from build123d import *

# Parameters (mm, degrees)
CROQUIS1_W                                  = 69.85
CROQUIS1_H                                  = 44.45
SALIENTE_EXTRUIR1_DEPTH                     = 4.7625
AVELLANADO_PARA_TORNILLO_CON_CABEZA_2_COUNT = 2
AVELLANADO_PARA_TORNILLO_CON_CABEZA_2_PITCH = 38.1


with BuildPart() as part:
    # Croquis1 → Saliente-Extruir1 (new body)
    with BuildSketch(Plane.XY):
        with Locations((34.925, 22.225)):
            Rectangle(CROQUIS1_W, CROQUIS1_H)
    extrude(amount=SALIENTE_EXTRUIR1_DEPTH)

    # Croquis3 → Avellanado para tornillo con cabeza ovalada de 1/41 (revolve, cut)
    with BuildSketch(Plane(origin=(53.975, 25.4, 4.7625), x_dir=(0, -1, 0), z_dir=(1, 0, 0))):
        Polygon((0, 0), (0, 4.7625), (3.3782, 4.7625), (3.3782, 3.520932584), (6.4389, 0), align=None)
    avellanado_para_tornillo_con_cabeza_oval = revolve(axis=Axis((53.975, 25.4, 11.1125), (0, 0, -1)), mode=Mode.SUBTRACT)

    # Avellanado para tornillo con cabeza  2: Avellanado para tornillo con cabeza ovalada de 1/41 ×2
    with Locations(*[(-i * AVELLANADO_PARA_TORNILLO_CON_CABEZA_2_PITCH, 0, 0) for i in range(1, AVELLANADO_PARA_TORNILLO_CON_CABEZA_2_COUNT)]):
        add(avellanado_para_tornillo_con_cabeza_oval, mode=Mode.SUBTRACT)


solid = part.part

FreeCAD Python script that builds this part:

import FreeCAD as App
import Part
import Sketcher
Q = App.Units.Quantity

doc = App.newDocument("Part")
body = doc.addObject("PartDesign::Body", "Body")

# Sketch on XY plane
sketch1 = body.newObject("Sketcher::SketchObject", "Sketch")
sketch1.AttachmentSupport = (doc.getObject("XY_Plane"), [""])
sketch1.MapMode = "FlatFace"
sketch1.addGeometry([
    Part.LineSegment(App.Vector(0, 44, 0), App.Vector(0, 0, 0)),
    Part.LineSegment(App.Vector(0, 0, 0), App.Vector(70, 0, 0)),
    Part.LineSegment(App.Vector(70, 0, 0), App.Vector(70, 44, 0)),
    Part.LineSegment(App.Vector(70, 44, 0), App.Vector(0, 44, 0)),
], False)
sketch1.addConstraint([
    Sketcher.Constraint("Coincident", 0, 2, 1, 1),
    Sketcher.Constraint("Coincident", 1, 2, 2, 1),
    Sketcher.Constraint("Coincident", 2, 2, 3, 1),
    Sketcher.Constraint("Coincident", 3, 2, 0, 1),
    Sketcher.Constraint("Vertical", 0),
    Sketcher.Constraint("Horizontal", 1),
    Sketcher.Constraint("Vertical", 2),
    Sketcher.Constraint("Horizontal", 3),
    Sketcher.Constraint("Coincident", 0, 2, -1, 1),
    Sketcher.Constraint("DistanceX", 1, 1, 1, 2, Q("2.75 in")),
    Sketcher.Constraint("DistanceY", 0, 2, 0, 1, Q("1.75 in")),
])
pad1 = body.newObject("PartDesign::Pad", "Pad")
pad1.Profile = sketch1
pad1.Length = Q("0.1875 in")

# Sketch on YZ plane
sketch2 = body.newObject("Sketcher::SketchObject", "Sketch001")
sketch2.AttachmentSupport = (doc.getObject("YZ_Plane"), [""])
sketch2.MapMode = "FlatFace"
sketch2.AttachmentOffset = App.Placement(App.Vector(0, 0, 2.125 * 25.4), App.Rotation())
sketch2.addGeometry([
    Part.LineSegment(App.Vector(25.4, 0, 0), App.Vector(25.4, 4.8, 0)),  # 0
    Part.LineSegment(App.Vector(25.4, 4.8, 0), App.Vector(19, 4.8, 0)),  # 1
    Part.LineSegment(App.Vector(19, 4.8, 0), App.Vector(22, 1.2, 0)),  # 2
    Part.LineSegment(App.Vector(22, 1.2, 0), App.Vector(22, 0, 0)),  # 3
    Part.LineSegment(App.Vector(22, 0, 0), App.Vector(25.4, 0, 0)),  # 4
], False)
sketch2.addGeometry(Part.LineSegment(App.Vector(25.4, 4.8, 0), App.Vector(25.4, 0, 0)), True)  # axis
sketch2.addConstraint([
    Sketcher.Constraint("Coincident", 0, 2, 1, 1),
    Sketcher.Constraint("Coincident", 1, 2, 2, 1),
    Sketcher.Constraint("Coincident", 2, 2, 3, 1),
    Sketcher.Constraint("Coincident", 3, 2, 4, 1),
    Sketcher.Constraint("Coincident", 4, 2, 0, 1),
    Sketcher.Constraint("Vertical", 0),
    Sketcher.Constraint("Horizontal", 1),
    Sketcher.Constraint("Vertical", 3),
    Sketcher.Constraint("Horizontal", 4),
    Sketcher.Constraint("Vertical", 5),
    Sketcher.Constraint("Coincident", 5, 1, 0, 2),
    Sketcher.Constraint("PointOnObject", 3, 2, -1),
    Sketcher.Constraint("PointOnObject", 5, 2, -1),
    Sketcher.Constraint("DistanceX", -1, 1, 0, 2, Q("1 in")),
    Sketcher.Constraint("Angle", 2, Q("-49 deg")),
    Sketcher.Constraint("DistanceX", 4, 1, 4, 2, Q("0.133 in")),
    Sketcher.Constraint("DistanceY", 0, 1, 0, 2, Q("0.1875 in")),
    Sketcher.Constraint("DistanceX", 1, 2, 1, 1, Q("0.2535 in")),
])
groove = body.newObject("PartDesign::Groove", "Groove")
groove.Profile = sketch2
groove.ReferenceAxis = (sketch2, ["Axis0"])
groove.Angle = 360
doc.recompute()

linearpattern = body.newObject("PartDesign::LinearPattern", "LinearPattern")
linearpattern.Originals = [groove]
linearpattern.Direction = (doc.getObject("X_Axis"), [""])
linearpattern.Mode = "offset"
linearpattern.Offset = Q("1.5 in")
linearpattern.Occurrences = 2
linearpattern.Reversed = True
body.Tip = linearpattern

doc.recompute()
